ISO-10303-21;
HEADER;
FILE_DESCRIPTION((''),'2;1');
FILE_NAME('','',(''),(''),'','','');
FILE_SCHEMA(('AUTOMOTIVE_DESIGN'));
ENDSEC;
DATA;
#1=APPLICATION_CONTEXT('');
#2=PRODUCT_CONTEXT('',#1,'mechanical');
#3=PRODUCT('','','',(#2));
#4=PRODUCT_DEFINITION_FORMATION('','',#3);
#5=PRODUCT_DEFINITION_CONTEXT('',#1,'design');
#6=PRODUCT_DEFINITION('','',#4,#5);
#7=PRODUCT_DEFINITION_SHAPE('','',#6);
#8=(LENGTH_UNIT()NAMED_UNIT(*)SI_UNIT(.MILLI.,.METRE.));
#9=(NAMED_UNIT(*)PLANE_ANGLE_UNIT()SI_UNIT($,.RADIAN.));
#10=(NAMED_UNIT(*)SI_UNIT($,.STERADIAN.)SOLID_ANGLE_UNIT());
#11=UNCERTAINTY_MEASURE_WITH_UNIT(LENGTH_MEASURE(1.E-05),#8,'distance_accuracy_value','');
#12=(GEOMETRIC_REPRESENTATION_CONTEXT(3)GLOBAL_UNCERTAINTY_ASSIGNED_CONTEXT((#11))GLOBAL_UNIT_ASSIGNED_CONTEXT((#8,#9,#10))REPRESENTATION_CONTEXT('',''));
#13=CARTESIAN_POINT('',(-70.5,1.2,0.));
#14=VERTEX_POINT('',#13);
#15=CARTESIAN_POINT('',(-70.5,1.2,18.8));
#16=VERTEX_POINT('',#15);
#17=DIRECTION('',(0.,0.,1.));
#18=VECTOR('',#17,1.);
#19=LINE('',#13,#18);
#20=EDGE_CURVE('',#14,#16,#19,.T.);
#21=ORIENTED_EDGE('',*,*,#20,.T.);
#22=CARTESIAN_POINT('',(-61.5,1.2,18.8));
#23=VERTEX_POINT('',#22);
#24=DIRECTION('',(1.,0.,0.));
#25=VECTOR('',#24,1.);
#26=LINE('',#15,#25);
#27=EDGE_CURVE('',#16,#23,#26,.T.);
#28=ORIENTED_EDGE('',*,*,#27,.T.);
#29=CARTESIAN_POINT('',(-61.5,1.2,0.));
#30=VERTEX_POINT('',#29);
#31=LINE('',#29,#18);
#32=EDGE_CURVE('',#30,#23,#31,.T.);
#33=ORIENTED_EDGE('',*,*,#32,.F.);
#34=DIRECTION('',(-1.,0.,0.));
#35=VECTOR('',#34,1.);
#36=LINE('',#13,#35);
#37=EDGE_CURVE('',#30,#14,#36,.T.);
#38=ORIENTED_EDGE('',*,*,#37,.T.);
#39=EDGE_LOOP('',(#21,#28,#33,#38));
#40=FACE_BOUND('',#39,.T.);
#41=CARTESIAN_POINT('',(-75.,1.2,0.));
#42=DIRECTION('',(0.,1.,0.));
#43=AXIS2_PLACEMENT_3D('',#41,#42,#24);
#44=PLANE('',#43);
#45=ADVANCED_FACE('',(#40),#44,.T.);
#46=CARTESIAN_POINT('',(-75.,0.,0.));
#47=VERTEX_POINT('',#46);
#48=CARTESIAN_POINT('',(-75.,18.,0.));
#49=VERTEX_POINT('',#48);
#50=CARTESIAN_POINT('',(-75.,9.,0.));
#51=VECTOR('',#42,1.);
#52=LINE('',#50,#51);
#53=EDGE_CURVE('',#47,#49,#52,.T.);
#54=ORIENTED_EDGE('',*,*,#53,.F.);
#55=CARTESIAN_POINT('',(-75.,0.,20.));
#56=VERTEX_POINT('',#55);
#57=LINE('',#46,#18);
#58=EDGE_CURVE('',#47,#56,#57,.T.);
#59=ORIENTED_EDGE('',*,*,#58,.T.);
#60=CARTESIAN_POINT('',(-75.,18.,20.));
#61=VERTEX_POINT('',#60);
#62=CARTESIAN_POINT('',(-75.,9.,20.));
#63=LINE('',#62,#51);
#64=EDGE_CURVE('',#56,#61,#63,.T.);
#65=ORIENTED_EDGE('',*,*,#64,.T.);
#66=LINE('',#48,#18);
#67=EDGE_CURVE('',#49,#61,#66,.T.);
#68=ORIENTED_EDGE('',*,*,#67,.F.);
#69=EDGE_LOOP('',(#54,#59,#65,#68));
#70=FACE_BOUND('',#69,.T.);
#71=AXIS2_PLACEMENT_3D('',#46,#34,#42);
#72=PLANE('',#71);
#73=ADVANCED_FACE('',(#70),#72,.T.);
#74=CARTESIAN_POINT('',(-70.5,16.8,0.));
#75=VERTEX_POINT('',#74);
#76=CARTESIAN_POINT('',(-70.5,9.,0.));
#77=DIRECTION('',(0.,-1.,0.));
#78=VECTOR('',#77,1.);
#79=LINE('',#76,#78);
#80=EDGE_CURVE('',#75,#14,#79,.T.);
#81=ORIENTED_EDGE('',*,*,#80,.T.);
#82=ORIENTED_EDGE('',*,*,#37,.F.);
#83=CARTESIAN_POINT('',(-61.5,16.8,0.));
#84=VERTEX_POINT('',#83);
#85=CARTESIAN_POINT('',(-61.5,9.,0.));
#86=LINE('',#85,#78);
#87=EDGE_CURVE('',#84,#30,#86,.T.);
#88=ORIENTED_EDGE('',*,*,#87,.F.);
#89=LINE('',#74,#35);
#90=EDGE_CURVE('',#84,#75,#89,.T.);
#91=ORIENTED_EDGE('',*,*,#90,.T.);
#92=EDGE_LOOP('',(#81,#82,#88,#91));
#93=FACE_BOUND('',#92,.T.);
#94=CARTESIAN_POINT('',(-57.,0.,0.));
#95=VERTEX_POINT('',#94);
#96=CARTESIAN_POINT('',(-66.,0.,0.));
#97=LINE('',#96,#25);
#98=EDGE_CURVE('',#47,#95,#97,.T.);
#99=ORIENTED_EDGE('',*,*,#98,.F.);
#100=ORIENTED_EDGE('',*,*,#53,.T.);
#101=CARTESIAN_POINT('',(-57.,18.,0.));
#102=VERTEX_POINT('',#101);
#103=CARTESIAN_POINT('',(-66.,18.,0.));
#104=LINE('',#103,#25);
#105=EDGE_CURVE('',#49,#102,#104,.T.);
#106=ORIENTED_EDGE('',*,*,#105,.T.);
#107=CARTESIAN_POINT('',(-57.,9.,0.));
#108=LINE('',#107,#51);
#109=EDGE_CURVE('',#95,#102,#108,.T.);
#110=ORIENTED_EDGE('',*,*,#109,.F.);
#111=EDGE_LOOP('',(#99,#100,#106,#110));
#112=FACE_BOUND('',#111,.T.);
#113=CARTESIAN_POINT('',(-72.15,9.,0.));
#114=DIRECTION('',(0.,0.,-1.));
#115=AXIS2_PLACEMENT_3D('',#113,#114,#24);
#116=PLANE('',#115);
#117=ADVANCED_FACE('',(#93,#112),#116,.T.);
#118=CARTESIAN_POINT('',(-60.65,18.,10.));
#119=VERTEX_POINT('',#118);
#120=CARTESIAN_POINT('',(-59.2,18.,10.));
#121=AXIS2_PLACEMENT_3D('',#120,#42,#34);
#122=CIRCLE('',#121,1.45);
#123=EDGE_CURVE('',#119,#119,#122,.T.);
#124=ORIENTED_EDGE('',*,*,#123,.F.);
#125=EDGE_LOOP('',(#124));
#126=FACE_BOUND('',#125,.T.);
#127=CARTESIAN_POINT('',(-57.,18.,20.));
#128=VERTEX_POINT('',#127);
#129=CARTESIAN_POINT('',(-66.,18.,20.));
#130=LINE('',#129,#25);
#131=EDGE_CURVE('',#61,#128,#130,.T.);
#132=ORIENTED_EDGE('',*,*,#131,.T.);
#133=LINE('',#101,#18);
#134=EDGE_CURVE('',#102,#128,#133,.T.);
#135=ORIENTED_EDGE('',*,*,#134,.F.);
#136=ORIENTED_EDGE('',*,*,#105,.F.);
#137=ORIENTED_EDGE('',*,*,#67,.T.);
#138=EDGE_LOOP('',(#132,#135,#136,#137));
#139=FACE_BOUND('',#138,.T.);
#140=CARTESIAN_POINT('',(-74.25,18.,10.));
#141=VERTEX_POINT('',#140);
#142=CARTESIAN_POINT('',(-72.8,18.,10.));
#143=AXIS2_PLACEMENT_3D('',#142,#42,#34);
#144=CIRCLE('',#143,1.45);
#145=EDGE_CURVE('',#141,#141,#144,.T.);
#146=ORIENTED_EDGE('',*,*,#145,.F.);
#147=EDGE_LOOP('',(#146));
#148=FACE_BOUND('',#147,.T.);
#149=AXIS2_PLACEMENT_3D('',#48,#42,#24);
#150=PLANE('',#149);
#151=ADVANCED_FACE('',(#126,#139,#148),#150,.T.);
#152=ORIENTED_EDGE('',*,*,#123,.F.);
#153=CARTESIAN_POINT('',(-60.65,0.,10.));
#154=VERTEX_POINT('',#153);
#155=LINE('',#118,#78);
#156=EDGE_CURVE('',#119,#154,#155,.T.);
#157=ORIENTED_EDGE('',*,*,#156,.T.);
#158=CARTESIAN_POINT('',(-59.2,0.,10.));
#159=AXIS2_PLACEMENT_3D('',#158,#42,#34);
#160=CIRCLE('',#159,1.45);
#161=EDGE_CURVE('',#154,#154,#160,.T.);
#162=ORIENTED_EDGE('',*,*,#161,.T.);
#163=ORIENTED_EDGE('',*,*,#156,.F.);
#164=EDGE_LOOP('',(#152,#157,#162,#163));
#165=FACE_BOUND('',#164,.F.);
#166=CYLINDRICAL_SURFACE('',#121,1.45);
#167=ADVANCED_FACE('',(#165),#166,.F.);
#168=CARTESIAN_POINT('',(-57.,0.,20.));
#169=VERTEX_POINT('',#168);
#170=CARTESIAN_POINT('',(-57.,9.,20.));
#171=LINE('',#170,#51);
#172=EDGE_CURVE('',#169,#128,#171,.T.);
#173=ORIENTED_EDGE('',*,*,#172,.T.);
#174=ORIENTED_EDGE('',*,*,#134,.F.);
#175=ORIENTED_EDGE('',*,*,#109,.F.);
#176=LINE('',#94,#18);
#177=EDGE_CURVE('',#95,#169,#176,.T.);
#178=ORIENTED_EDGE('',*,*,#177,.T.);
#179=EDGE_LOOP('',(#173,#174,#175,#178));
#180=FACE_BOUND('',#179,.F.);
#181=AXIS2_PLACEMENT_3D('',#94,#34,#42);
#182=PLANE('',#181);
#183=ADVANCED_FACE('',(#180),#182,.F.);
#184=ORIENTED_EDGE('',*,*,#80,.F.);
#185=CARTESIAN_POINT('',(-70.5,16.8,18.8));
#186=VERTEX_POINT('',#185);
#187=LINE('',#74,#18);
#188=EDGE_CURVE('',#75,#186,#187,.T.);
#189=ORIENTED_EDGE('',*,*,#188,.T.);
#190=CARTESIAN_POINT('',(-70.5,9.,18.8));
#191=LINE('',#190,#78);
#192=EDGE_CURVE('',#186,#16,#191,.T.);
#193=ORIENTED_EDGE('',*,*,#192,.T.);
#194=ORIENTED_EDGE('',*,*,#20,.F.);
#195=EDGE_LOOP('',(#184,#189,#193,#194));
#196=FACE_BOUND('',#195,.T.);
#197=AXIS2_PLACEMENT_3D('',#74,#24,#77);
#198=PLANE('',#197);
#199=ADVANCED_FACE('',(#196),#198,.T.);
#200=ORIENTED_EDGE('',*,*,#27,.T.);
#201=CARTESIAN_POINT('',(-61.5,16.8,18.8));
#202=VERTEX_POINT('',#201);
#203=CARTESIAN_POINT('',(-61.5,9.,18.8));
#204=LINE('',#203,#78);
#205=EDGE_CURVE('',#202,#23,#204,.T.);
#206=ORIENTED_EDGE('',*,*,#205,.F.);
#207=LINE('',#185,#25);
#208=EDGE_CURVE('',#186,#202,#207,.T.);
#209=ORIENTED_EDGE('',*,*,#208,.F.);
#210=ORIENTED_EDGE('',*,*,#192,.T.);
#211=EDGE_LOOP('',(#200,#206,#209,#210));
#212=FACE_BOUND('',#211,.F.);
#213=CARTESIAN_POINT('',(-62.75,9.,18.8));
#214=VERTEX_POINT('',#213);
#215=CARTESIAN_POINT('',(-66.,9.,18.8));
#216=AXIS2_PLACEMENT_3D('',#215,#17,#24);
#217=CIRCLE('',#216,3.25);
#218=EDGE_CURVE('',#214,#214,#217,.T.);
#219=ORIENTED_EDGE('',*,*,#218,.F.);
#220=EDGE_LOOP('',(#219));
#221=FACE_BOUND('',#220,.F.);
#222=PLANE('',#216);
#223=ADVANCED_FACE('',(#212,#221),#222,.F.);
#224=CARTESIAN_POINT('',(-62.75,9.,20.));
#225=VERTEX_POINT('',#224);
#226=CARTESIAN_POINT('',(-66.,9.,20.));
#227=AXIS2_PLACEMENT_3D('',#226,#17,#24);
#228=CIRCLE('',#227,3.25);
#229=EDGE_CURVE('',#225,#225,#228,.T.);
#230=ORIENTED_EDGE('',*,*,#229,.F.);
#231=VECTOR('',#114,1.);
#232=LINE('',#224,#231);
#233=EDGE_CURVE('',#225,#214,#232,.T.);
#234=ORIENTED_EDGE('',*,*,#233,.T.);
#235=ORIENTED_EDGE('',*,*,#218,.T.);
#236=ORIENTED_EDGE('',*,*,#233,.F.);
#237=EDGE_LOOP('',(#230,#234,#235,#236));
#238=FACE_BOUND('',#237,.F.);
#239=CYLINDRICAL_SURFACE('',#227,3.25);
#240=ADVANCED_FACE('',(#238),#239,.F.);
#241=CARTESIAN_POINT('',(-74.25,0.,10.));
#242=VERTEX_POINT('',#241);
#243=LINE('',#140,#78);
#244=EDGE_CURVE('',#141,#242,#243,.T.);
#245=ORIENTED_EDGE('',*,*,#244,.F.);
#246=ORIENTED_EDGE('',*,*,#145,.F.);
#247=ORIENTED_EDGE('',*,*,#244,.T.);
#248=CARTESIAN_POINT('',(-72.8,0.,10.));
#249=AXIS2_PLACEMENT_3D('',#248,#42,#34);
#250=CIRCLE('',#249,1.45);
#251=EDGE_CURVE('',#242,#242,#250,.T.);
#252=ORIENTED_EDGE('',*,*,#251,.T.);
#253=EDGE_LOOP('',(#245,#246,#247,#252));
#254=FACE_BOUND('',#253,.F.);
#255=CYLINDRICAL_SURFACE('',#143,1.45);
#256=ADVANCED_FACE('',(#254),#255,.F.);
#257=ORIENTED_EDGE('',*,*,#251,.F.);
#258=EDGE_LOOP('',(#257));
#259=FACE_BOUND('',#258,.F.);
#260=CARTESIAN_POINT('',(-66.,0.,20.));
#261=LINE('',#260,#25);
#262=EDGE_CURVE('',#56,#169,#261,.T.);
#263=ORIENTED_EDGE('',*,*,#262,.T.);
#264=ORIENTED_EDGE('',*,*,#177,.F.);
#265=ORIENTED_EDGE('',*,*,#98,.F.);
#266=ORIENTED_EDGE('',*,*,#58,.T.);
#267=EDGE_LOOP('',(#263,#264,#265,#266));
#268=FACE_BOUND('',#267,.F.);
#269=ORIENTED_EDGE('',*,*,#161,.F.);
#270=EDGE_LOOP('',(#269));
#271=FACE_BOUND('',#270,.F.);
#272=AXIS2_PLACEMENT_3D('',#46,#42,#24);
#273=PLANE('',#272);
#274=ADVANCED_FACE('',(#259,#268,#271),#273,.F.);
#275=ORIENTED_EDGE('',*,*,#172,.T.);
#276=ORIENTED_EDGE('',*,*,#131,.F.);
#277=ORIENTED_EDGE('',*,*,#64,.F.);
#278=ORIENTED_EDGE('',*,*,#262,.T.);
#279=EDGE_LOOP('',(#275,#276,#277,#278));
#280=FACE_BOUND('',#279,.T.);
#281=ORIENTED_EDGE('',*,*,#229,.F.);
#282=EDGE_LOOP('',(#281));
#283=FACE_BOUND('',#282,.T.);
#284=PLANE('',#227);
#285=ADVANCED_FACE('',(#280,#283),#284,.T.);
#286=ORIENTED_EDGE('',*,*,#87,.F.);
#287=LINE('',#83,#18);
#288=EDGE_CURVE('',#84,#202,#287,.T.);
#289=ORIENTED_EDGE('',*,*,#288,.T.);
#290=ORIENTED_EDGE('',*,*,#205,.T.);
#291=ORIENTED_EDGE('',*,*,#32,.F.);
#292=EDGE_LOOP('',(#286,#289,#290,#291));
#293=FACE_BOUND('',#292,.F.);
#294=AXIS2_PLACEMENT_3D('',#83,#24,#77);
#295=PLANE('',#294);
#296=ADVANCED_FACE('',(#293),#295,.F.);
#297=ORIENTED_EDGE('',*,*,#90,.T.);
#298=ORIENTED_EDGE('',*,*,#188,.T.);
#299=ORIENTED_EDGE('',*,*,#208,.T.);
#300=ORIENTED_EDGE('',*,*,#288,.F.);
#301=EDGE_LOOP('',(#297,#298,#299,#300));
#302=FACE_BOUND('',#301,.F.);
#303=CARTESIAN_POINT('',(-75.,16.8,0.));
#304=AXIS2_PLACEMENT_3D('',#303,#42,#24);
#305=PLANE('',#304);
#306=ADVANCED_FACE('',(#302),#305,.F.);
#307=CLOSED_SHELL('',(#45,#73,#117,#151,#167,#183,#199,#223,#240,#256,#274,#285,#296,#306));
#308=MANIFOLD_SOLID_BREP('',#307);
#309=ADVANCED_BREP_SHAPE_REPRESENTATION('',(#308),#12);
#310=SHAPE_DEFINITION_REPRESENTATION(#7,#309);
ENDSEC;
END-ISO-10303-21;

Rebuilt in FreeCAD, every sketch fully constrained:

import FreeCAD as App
import Part
import Sketcher

V = App.Vector
Q = App.Units.Quantity


def faces_at(feature, points):
    """Names of the faces that lie closest to the given points."""
    faces = feature.Shape.Faces
    near = lambda p: min(range(len(faces)), key=lambda i: faces[i].distToShape(Part.Vertex(*p))[0])
    return sorted({f"Face{near(p) + 1}" for p in points})


def add_polygon(sketch, points):
    """Adds a closed chain of lines whose ends are joined by coincident constraints."""
    first, n = sketch.GeometryCount, len(points)
    for a, b in zip(points, points[1:] + points[:1]):
        sketch.addGeometry(Part.LineSegment(App.Vector(*a, 0), App.Vector(*b, 0)), False)
    for i in range(n):
        sketch.addConstraint(Sketcher.Constraint("Coincident", first + i, 2, first + (i + 1) % n, 1))

doc = App.newDocument("Part")
body = doc.addObject("PartDesign::Body", "Body")

# Sketch on XY plane
sketch1 = body.newObject("Sketcher::SketchObject", "Sketch")
sketch1.AttachmentSupport = (doc.getObject("XY_Plane"), [""])
sketch1.MapMode = "FlatFace"
add_polygon(sketch1, [(0, 18), (0, 0), (18, 0), (18, 18)])  # lines 0-3
sketch1.addConstraint(Sketcher.Constraint("Vertical", 0))
sketch1.addConstraint(Sketcher.Constraint("Horizontal", 1))
sketch1.addConstraint(Sketcher.Constraint("Vertical", 2))
sketch1.addConstraint(Sketcher.Constraint("Horizontal", 3))
sketch1.addConstraint(Sketcher.Constraint("Coincident", 0, 2, -1, 1))
sketch1.addConstraint(Sketcher.Constraint("Equal", 3, 0))
sketch1.addConstraint(Sketcher.Constraint("DistanceX", 1, 1, 1, 2, Q("18 mm")))
pad1 = body.newObject("PartDesign::Pad", "Pad")
pad1.Profile = sketch1
pad1.Length = 20
doc.recompute()

thickness = body.newObject("PartDesign::Thickness", "Thickness")
thickness.Base = (pad1, faces_at(pad1, [(9, 9, 0)]))
thickness.Value = 1.2
thickness.Reversed = True
thickness.Join = "Intersection"

# Sketch on XY plane
sketch2 = body.newObject("Sketcher::SketchObject", "Sketch001")
sketch2.AttachmentSupport = (doc.getObject("XY_Plane"), [""])
sketch2.MapMode = "FlatFace"
sketch2.AttachmentOffset = App.Placement(V(0, 0, 20), App.Rotation())
sketch2.addGeometry(Part.Circle(V(9, 9, 0), V(0, 0, 1), 3.2), False)
sketch2.addConstraint(Sketcher.Constraint("Diameter", 0, Q("6.5 mm")))
sketch2.addConstraint(Sketcher.Constraint("DistanceX", -1, 1, 0, 3, Q("9 mm")))
sketch2.addConstraint(Sketcher.Constraint("DistanceY", -1, 1, 0, 3, Q("9 mm")))
pocket1 = body.newObject("PartDesign::Pocket", "Pocket")
pocket1.Profile = sketch2
pocket1.Length = 5

# Sketch on XY plane
sketch3 = body.newObject("Sketcher::SketchObject", "Sketch002")
sketch3.AttachmentSupport = (doc.getObject("XY_Plane"), [""])
sketch3.MapMode = "FlatFace"
add_polygon(sketch3, [(1.2, 1.2), (1.2, 16.8), (4.5, 16.8), (4.5, 1.2)])  # lines 0-3
add_polygon(sketch3, [(13.5, 1.2), (13.5, 16.8), (16.8, 16.8), (16.8, 1.2)])  # lines 4-7
sketch3.addConstraint(Sketcher.Constraint("Vertical", 0))
sketch3.addConstraint(Sketcher.Constraint("Horizontal", 1))
sketch3.addConstraint(Sketcher.Constraint("Vertical", 2))
sketch3.addConstraint(Sketcher.Constraint("Horizontal", 3))
sketch3.addConstraint(Sketcher.Constraint("Vertical", 4))
sketch3.addConstraint(Sketcher.Constraint("Horizontal", 5))
sketch3.addConstraint(Sketcher.Constraint("Vertical", 6))
sketch3.addConstraint(Sketcher.Constraint("Horizontal", 7))
sketch3.addConstraint(Sketcher.Constraint("Horizontal", 1, 2, 4, 2))
sketch3.addConstraint(Sketcher.Constraint("Horizontal", 3, 2, 6, 2))
sketch3.addConstraint(Sketcher.Constraint("Equal", 3, 5))
sketch3.addConstraint(Sketcher.Constraint("DistanceX", 1, 1, 1, 2, Q("3.3 mm")))
sketch3.addConstraint(Sketcher.Constraint("DistanceY", 0, 1, 0, 2, Q("15.6 mm")))
sketch3.addConstraint(Sketcher.Constraint("DistanceX", 1, 2, 4, 2, Q("9 mm")))
sketch3.addConstraint(Sketcher.Constraint("DistanceX", -1, 1, 0, 2, Q("1.2 mm")))
sketch3.addConstraint(Sketcher.Constraint("DistanceY", -1, 1, 0, 2, Q("16.8 mm")))
pad2 = body.newObject("PartDesign::Pad", "Pad001")
pad2.Profile = sketch3
pad2.Length = 18.8

# Sketch on XZ plane
sketch4 = body.newObject("Sketcher::SketchObject", "Sketch003")
sketch4.AttachmentSupport = (doc.getObject("XZ_Plane"), [""])
sketch4.MapMode = "FlatFace"
sketch4.AttachmentOffset = App.Placement(V(0, 0, -18), App.Rotation())
sketch4.addGeometry(Part.Circle(V(15.8, 10, 0), V(0, 0, 1), 1.4), False)
sketch4.addGeometry(Part.Circle(V(2.2, 10, 0), V(0, 0, 1), 1.4), False)
sketch4.addConstraint(Sketcher.Constraint("Equal", 0, 1))
sketch4.addConstraint(Sketcher.Constraint("Horizontal", 0, 3, 1, 3))
sketch4.addConstraint(Sketcher.Constraint("Diameter", 0, Q("2.9 mm")))
sketch4.addConstraint(Sketcher.Constraint("DistanceY", -1, 1, 0, 3, Q("10 mm")))
sketch4.addConstraint(Sketcher.Constraint("DistanceX", -1, 1, 0, 3, Q("15.8 mm")))
sketch4.addConstraint(Sketcher.Constraint("DistanceX", -1, 1, 1, 3, Q("2.2 mm")))
pocket2 = body.newObject("PartDesign::Pocket", "Pocket001")
pocket2.Profile = sketch4
pocket2.Type = "ThroughAll"
pocket2.Reversed = True
body2 = doc.addObject("PartDesign::Body", "Body001")
doc.recompute()

body.Placement = App.Placement(V(-75, 0, 0), App.Rotation(V(0, 0, 1), 0))
boolean = body2.newObject("PartDesign::Boolean", "Boolean")
boolean.Type = "Fuse"
boolean.addObjects([body])

doc.recompute()
